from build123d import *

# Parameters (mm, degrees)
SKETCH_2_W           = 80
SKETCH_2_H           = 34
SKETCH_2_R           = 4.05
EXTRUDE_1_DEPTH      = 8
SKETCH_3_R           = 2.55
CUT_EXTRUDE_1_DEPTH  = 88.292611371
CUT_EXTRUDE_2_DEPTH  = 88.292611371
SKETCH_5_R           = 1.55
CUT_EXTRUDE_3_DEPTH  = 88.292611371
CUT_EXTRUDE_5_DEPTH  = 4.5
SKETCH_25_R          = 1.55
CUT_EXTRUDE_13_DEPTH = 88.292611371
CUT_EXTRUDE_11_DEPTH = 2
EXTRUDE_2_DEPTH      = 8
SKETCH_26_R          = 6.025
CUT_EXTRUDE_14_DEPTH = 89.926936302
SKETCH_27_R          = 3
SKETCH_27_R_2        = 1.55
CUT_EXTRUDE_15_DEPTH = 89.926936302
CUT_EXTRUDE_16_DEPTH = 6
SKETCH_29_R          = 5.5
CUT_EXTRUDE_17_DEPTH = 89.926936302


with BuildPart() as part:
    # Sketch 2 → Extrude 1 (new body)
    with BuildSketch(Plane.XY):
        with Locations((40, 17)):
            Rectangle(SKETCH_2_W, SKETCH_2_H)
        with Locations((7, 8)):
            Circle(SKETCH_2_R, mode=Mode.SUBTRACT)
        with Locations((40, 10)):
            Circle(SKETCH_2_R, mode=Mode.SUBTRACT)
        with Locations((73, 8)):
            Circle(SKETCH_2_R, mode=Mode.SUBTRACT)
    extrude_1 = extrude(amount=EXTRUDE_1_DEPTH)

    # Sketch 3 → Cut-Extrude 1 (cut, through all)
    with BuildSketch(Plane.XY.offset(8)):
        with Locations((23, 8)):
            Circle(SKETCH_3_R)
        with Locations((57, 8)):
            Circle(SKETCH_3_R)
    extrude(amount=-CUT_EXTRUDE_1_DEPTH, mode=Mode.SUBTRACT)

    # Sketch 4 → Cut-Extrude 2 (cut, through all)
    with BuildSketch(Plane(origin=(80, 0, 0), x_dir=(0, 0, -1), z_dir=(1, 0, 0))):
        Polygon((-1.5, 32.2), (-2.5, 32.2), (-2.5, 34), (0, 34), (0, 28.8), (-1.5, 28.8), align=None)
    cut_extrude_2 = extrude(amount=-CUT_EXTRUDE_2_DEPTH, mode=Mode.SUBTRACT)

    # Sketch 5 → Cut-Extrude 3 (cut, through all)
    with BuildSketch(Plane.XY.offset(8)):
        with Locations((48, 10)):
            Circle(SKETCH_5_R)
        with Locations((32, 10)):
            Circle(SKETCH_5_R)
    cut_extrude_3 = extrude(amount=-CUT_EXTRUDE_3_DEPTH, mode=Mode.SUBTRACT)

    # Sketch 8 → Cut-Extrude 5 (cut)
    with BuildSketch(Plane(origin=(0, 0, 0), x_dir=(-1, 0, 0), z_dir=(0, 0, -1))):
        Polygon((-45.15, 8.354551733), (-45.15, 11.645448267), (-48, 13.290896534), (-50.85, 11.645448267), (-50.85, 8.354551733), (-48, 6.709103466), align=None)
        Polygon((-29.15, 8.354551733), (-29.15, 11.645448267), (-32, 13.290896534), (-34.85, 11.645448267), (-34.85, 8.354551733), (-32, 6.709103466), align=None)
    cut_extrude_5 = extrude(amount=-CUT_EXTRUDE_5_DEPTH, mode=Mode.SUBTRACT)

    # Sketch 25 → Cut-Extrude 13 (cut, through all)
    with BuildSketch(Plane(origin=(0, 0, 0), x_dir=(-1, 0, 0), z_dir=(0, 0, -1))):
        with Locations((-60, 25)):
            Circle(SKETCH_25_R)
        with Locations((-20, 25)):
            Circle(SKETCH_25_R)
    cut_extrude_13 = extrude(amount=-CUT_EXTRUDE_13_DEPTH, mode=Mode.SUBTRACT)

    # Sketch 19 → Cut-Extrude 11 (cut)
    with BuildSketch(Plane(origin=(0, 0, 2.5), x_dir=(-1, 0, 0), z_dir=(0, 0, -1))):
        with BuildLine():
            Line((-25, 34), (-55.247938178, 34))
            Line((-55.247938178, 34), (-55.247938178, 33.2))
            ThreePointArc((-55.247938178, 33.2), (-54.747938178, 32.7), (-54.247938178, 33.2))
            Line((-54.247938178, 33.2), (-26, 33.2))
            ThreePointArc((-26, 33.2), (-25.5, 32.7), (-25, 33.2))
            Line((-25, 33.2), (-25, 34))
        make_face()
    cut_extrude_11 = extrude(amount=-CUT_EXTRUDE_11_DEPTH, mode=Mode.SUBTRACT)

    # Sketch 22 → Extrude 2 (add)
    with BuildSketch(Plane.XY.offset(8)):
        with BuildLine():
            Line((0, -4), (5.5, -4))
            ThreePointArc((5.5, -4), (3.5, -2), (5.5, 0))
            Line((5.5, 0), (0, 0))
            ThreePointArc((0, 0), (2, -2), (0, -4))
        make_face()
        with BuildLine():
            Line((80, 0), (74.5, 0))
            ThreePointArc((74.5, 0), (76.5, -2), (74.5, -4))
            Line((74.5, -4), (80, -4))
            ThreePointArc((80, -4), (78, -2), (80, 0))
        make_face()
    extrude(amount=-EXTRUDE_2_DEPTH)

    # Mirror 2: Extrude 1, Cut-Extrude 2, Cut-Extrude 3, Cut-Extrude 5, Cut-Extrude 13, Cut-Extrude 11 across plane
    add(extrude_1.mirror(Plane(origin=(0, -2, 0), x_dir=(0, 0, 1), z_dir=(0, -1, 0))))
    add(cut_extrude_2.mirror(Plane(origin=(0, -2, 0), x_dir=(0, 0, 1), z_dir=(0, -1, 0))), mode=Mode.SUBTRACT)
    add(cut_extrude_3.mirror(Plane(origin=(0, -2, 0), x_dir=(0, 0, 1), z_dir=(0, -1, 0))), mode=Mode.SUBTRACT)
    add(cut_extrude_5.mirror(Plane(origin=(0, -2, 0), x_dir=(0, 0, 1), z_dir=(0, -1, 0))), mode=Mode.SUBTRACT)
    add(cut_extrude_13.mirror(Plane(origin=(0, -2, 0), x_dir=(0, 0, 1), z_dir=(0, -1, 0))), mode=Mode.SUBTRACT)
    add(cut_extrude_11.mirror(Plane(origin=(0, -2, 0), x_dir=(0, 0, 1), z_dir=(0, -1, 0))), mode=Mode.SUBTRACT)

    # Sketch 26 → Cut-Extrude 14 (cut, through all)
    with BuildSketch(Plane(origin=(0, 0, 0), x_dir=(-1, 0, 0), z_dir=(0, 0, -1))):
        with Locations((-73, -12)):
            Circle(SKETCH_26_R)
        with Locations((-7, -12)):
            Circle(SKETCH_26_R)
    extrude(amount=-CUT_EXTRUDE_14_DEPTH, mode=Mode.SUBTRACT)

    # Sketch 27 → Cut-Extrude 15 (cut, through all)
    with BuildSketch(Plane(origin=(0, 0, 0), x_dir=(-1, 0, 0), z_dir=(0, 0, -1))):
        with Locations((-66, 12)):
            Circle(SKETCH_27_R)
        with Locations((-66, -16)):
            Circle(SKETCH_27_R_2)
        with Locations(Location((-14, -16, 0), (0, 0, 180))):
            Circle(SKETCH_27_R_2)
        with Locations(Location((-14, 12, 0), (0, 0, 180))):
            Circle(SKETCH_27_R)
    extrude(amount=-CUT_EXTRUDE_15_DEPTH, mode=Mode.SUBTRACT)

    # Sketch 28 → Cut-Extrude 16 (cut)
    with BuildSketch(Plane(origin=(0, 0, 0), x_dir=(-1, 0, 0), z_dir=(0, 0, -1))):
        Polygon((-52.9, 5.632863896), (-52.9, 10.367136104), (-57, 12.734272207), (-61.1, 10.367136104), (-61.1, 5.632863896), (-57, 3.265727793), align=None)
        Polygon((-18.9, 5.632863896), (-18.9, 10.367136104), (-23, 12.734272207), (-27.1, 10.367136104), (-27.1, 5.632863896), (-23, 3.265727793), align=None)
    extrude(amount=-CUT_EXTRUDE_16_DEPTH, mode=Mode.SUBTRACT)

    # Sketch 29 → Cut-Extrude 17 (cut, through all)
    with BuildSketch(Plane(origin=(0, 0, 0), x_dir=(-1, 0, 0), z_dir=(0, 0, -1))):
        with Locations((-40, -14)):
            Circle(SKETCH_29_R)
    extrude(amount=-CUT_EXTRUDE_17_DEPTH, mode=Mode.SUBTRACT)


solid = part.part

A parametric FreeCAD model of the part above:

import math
import FreeCAD as App
import Part
import Sketcher

V = App.Vector
Q = App.Units.Quantity


def add_polygon(sketch, points):
    """Adds a closed chain of lines whose ends are joined by coincident constraints."""
    first, n = sketch.GeometryCount, len(points)
    for a, b in zip(points, points[1:] + points[:1]):
        sketch.addGeometry(Part.LineSegment(App.Vector(*a, 0), App.Vector(*b, 0)), False)
    for i in range(n):
        sketch.addConstraint(Sketcher.Constraint("Coincident", first + i, 2, first + (i + 1) % n, 1))

doc = App.newDocument("Part")
body = doc.addObject("PartDesign::Body", "Body")

sketch1 = body.newObject("Sketcher::SketchObject", "Sketch")
sketch1.AttachmentSupport = (doc.getObject("XY_Plane"), [""])
sketch1.MapMode = "FlatFace"
add_polygon(sketch1, [(0, 34), (0, 0), (80, 0), (80, 34)])
sketch1.addGeometry(Part.Circle(V(7, 8, 0), V(0, 0, 1), 4), False)
sketch1.addGeometry(Part.Circle(V(73, 8, 0), V(0, 0, 1), 4), False)
sketch1.addGeometry(Part.Circle(V(40, 10, 0), V(0, 0, 1), 4), False)
sketch1.addConstraint([
    Sketcher.Constraint("Vertical", 0),
    Sketcher.Constraint("Horizontal", 1),
    Sketcher.Constraint("Vertical", 2),
    Sketcher.Constraint("Horizontal", 3),
    Sketcher.Constraint("Coincident", 0, 2, -1, 1),
    Sketcher.Constraint("Equal", 4, 5),
    Sketcher.Constraint("Equal", 5, 6),
    Sketcher.Constraint("Horizontal", 4, 3, 5, 3),
    Sketcher.Constraint("Diameter", 4, Q("8.1 mm")),
    Sketcher.Constraint("DistanceX", 1, 1, 1, 2, Q("80 mm")),
    Sketcher.Constraint("DistanceY", 0, 2, 0, 1, Q("34 mm")),
    Sketcher.Constraint("DistanceX", -1, 1, 4, 3, Q("7 mm")),
    Sketcher.Constraint("DistanceY", -1, 1, 4, 3, Q("8 mm")),
    Sketcher.Constraint("DistanceX", -1, 1, 5, 3, Q("73 mm")),
    Sketcher.Constraint("DistanceX", -1, 1, 6, 3, Q("40 mm")),
    Sketcher.Constraint("DistanceY", -1, 1, 6, 3, Q("10 mm")),
])
pad1 = body.newObject("PartDesign::Pad", "Pad")
pad1.Profile = sketch1
pad1.Length = 8

sketch2 = body.newObject("Sketcher::SketchObject", "Sketch001")
sketch2.AttachmentSupport = (doc.getObject("XY_Plane"), [""])
sketch2.MapMode = "FlatFace"
sketch2.AttachmentOffset = App.Placement(V(0, 0, 8), App.Rotation())
sketch2.addGeometry([
    Part.Circle(V(23, 8, 0), V(0, 0, 1), 2.5),
    Part.Circle(V(57, 8, 0), V(0, 0, 1), 2.5),
], False)
sketch2.addConstraint([
    Sketcher.Constraint("Equal", 0, 1),
    Sketcher.Constraint("Horizontal", 0, 3, 1, 3),
    Sketcher.Constraint("Diameter", 0, Q("5.1 mm")),
    Sketcher.Constraint("DistanceX", -1, 1, 0, 3, Q("23 mm")),
    Sketcher.Constraint("DistanceY", -1, 1, 0, 3, Q("8 mm")),
    Sketcher.Constraint("DistanceX", -1, 1, 1, 3, Q("57 mm")),
])
pocket1 = body.newObject("PartDesign::Pocket", "Pocket")
pocket1.Profile = sketch2
pocket1.Type = "ThroughAll"

sketch3 = body.newObject("Sketcher::SketchObject", "Sketch002")
sketch3.AttachmentSupport = (doc.getObject("YZ_Plane"), [""])
sketch3.MapMode = "FlatFace"
sketch3.AttachmentOffset = App.Placement(V(0, 0, 80), App.Rotation())
add_polygon(sketch3, [(32.2, 2.5), (32.2, 1.5), (28.8, 1.5), (28.8, 0), (34, 0), (34, 2.5)])
sketch3.addConstraint([
    Sketcher.Constraint("Vertical", 0),
    Sketcher.Constraint("Horizontal", 1),
    Sketcher.Constraint("Vertical", 2),
    Sketcher.Constraint("Horizontal", 3),
    Sketcher.Constraint("Vertical", 4),
    Sketcher.Constraint("Horizontal", 5),
    Sketcher.Constraint("PointOnObject", 2, 2, -1),
    Sketcher.Constraint("DistanceY", 0, 2, 0, 1, Q("1 mm")),
    Sketcher.Constraint("DistanceX", 1, 2, 1, 1, Q("3.4 mm")),
    Sketcher.Constraint("DistanceX", 3, 1, 3, 2, Q("5.2 mm")),
    Sketcher.Constraint("DistanceY", 2, 2, 2, 1, Q("1.5 mm")),
    Sketcher.Constraint("DistanceX", -1, 1, 3, 2, Q("34 mm")),
])
pocket2 = body.newObject("PartDesign::Pocket", "Pocket001")
pocket2.Profile = sketch3
pocket2.Type = "ThroughAll"

sketch4 = body.newObject("Sketcher::SketchObject", "Sketch003")
sketch4.AttachmentSupport = (doc.getObject("XY_Plane"), [""])
sketch4.MapMode = "FlatFace"
sketch4.AttachmentOffset = App.Placement(V(0, 0, 8), App.Rotation())
sketch4.addGeometry([
    Part.Circle(V(48, 10, 0), V(0, 0, 1), 1.6),
    Part.Circle(V(32, 10, 0), V(0, 0, 1), 1.6),
], False)
sketch4.addConstraint([
    Sketcher.Constraint("Equal", 0, 1),
    Sketcher.Constraint("Horizontal", 0, 3, 1, 3),
    Sketcher.Constraint("Diameter", 0, Q("3.1 mm")),
    Sketcher.Constraint("DistanceX", -1, 1, 0, 3, Q("48 mm")),
    Sketcher.Constraint("DistanceY", -1, 1, 0, 3, Q("10 mm")),
    Sketcher.Constraint("DistanceX", -1, 1, 1, 3, Q("32 mm")),
])
pocket3 = body.newObject("PartDesign::Pocket", "Pocket002")
pocket3.Profile = sketch4
pocket3.Type = "ThroughAll"

sketch5 = body.newObject("Sketcher::SketchObject", "Sketch004")
sketch5.AttachmentSupport = (doc.getObject("XY_Plane"), [""])
sketch5.MapMode = "FlatFace"
add_polygon(sketch5, [(45.1, 8.4), (45.1, 11.6), (48, 13.3), (50.9, 11.6), (50.9, 8.4), (48, 6.7)])
add_polygon(sketch5, [(29.1, 8.4), (29.1, 11.6), (32, 13.3), (34.9, 11.6), (34.9, 8.4), (32, 6.7)])
sketch5.addConstraint([
    Sketcher.Constraint("Vertical", 0),
    Sketcher.Constraint("Vertical", 3),
    Sketcher.Constraint("Vertical", 6),
    Sketcher.Constraint("Vertical", 9),
    Sketcher.Constraint("Parallel", 1, 4),
    Sketcher.Constraint("Parallel", 2, 5),
    Sketcher.Constraint("Parallel", 4, 7),
    Sketcher.Constraint("Parallel", 5, 8),
    Sketcher.Constraint("Parallel", 7, 10),
    Sketcher.Constraint("Parallel", 8, 11),
    Sketcher.Constraint("Horizontal", 0, 2, 2, 2),
    Sketcher.Constraint("Horizontal", 3, 2, 5, 2),
    Sketcher.Constraint("Horizontal", 2, 2, 6, 2),
    Sketcher.Constraint("Horizontal", 1, 2, 7, 2),
    Sketcher.Constraint("Horizontal", 6, 2, 8, 2),
    Sketcher.Constraint("Horizontal", 5, 2, 9, 2),
    Sketcher.Constraint("Horizontal", 4, 2, 10, 2),
    Sketcher.Constraint("Vertical", 1, 2, 4, 2),
    Sketcher.Constraint("Angle", 1, Q("30 deg")),
    Sketcher.Constraint("DistanceX", -1, 1, 1, 2, Q("48 mm")),
    Sketcher.Constraint("DistanceX", -1, 1, 7, 2, Q("32 mm")),
    Sketcher.Constraint("DistanceX", 0, 2, 2, 2, Q("5.7 mm")),
    Sketcher.Constraint("DistanceY", 0, 1, 0, 2, Q("3.290897 mm")),
    Sketcher.Constraint("DistanceY", -1, 1, 0, 2, Q("11.645448 mm")),
])
pocket4 = body.newObject("PartDesign::Pocket", "Pocket003")
pocket4.Profile = sketch5
pocket4.Length = 4.5
pocket4.Reversed = True

sketch6 = body.newObject("Sketcher::SketchObject", "Sketch005")
sketch6.AttachmentSupport = (doc.getObject("XY_Plane"), [""])
sketch6.MapMode = "FlatFace"
sketch6.addGeometry([
    Part.Circle(V(60, 25, 0), V(0, 0, 1), 1.6),
    Part.Circle(V(20, 25, 0), V(0, 0, 1), 1.6),
], False)
sketch6.addConstraint([
    Sketcher.Constraint("Equal", 0, 1),
    Sketcher.Constraint("Horizontal", 0, 3, 1, 3),
    Sketcher.Constraint("Diameter", 0, Q("3.1 mm")),
    Sketcher.Constraint("DistanceX", -1, 1, 0, 3, Q("60 mm")),
    Sketcher.Constraint("DistanceY", -1, 1, 0, 3, Q("25 mm")),
    Sketcher.Constraint("DistanceX", -1, 1, 1, 3, Q("20 mm")),
])
pocket5 = body.newObject("PartDesign::Pocket", "Pocket004")
pocket5.Profile = sketch6
pocket5.Type = "ThroughAll"
pocket5.Reversed = True

sketch7 = body.newObject("Sketcher::SketchObject", "Sketch006")
sketch7.AttachmentSupport = (doc.getObject("XY_Plane"), [""])
sketch7.MapMode = "FlatFace"
sketch7.AttachmentOffset = App.Placement(V(0, 0, 2.5), App.Rotation())
sketch7.addGeometry([
    Part.LineSegment(V(25, 34, 0), V(55.2, 34, 0)),
    Part.LineSegment(V(55.2, 34, 0), V(55.2, 33.2, 0)),
    Part.ArcOfCircle(Part.Circle(V(54.7, 33.2, 0), V(0, 0, 1), 0.5), math.radians(180), math.radians(360)),
    Part.LineSegment(V(54.2, 33.2, 0), V(26, 33.2, 0)),
    Part.ArcOfCircle(Part.Circle(V(25.5, 33.2, 0), V(0, 0, 1), 0.5), math.radians(180), math.radians(360)),
    Part.LineSegment(V(25, 33.2, 0), V(25, 34, 0)),
], False)
sketch7.addConstraint([
    Sketcher.Constraint("Coincident", 0, 2, 1, 1),
    Sketcher.Constraint("Tangent", 1, 2, 2, 2),
    Sketcher.Constraint("Coincident", 2, 1, 3, 1),
    Sketcher.Constraint("Coincident", 3, 2, 4, 2),
    Sketcher.Constraint("Tangent", 4, 1, 5, 1),
    Sketcher.Constraint("Coincident", 5, 2, 0, 1),
    Sketcher.Constraint("Horizontal", 0),
    Sketcher.Constraint("Vertical", 1),
    Sketcher.Constraint("Horizontal", 3),
    Sketcher.Constraint("Vertical", 5),
    Sketcher.Constraint("Equal", 2, 4),
    Sketcher.Constraint("Horizontal", 2, 3, 4, 3),
    Sketcher.Constraint("Horizontal", 1, 2, 2, 1),
    Sketcher.Constraint("Radius", 2, Q("0.5 mm")),
    Sketcher.Constraint("DistanceY", 1, 2, 1, 1, Q("0.8 mm")),
    Sketcher.Constraint("DistanceY", -1, 1, 0, 2, Q("34 mm")),
    Sketcher.Constraint("DistanceX", -1, 1, 3, 2, Q("26 mm")),
    Sketcher.Constraint("DistanceX", 0, 1, 0, 2, Q("30.247938 mm")),
])
pocket6 = body.newObject("PartDesign::Pocket", "Pocket005")
pocket6.Profile = sketch7
pocket6.Length = 2
pocket6.Reversed = True

sketch8 = body.newObject("Sketcher::SketchObject", "Sketch007")
sketch8.AttachmentSupport = (doc.getObject("XY_Plane"), [""])
sketch8.MapMode = "FlatFace"
sketch8.AttachmentOffset = App.Placement(V(0, 0, 8), App.Rotation())
sketch8.addGeometry([
    Part.LineSegment(V(0, -4, 0), V(5.5, -4, 0)),
    Part.ArcOfCircle(Part.Circle(V(5.5, -2, 0), V(0, 0, 1), 2), math.radians(90), math.radians(270)),
    Part.LineSegment(V(5.5, 0, 0), V(0, 0, 0)),
    Part.ArcOfCircle(Part.Circle(V(0, -2, 0), V(0, 0, 1), 2), math.radians(-90), math.radians(90)),
    Part.LineSegment(V(80, 0, 0), V(74.5, 0, 0)),
    Part.ArcOfCircle(Part.Circle(V(74.5, -2, 0), V(0, 0, 1), 2), math.radians(-90), math.radians(90)),
    Part.LineSegment(V(74.5, -4, 0), V(80, -4, 0)),
    Part.ArcOfCircle(Part.Circle(V(80, -2, 0), V(0, 0, 1), 2), math.radians(90), math.radians(270)),
], False)
sketch8.addConstraint([
    Sketcher.Constraint("Tangent", 0, 2, 1, 2),
    Sketcher.Constraint("Tangent", 1, 1, 2, 1),
    Sketcher.Constraint("Tangent", 2, 2, 3, 2),
    Sketcher.Constraint("Tangent", 3, 1, 0, 1),
    Sketcher.Constraint("Tangent", 4, 2, 5, 2),
    Sketcher.Constraint("Tangent", 5, 1, 6, 1),
    Sketcher.Constraint("Tangent", 6, 2, 7, 2),
    Sketcher.Constraint("Tangent", 7, 1, 4, 1),
    Sketcher.Constraint("Horizontal", 0),
    Sketcher.Constraint("Horizontal", 2),
    Sketcher.Constraint("Horizontal", 4),
    Sketcher.Constraint("Horizontal", 6),
    Sketcher.Constraint("Coincident", 2, 2, -1, 1),
    Sketcher.Constraint("Equal", 3, 5),
    Sketcher.Constraint("PointOnObject", 4, 2, -1),
    Sketcher.Constraint("Equal", 2, 4),
    Sketcher.Constraint("Radius", 1, Q("2 mm")),
    Sketcher.Constraint("DistanceX", 0, 1, 0, 2, Q("5.5 mm")),
    Sketcher.Constraint("DistanceX", -1, 1, 7, 3, Q("80 mm")),
])
pad2 = body.newObject("PartDesign::Pad", "Pad001")
pad2.Profile = sketch8
pad2.Length = 8
pad2.Reversed = True
doc.recompute()

datumplane = body.newObject("PartDesign::Plane", "DatumPlane")
datumplane.AttachmentSupport = (doc.getObject("XZ_Plane"), [""])
datumplane.MapMode = "FlatFace"
datumplane.AttachmentOffset = App.Placement(V(0, 0, 2), App.Rotation())
mirrored = body.newObject("PartDesign::Mirrored", "Mirrored")
mirrored.Originals = [pad1, pocket2, pocket3, pocket4, pocket5, pocket6]
mirrored.MirrorPlane = (datumplane, [""])
body.Tip = mirrored

sketch9 = body.newObject("Sketcher::SketchObject", "Sketch008")
sketch9.AttachmentSupport = (doc.getObject("XY_Plane"), [""])
sketch9.MapMode = "FlatFace"
sketch9.addGeometry([
    Part.Circle(V(73, -12, 0), V(0, 0, 1), 6),
    Part.Circle(V(7, -12, 0), V(0, 0, 1), 6),
], False)
sketch9.addConstraint([
    Sketcher.Constraint("Equal", 0, 1),
    Sketcher.Constraint("Horizontal", 0, 3, 1, 3),
    Sketcher.Constraint("Diameter", 0, Q("12.05 mm")),
    Sketcher.Constraint("DistanceX", -1, 1, 0, 3, Q("73 mm")),
    Sketcher.Constraint("DistanceY", 0, 3, -1, 1, Q("12 mm")),
    Sketcher.Constraint("DistanceX", -1, 1, 1, 3, Q("7 mm")),
])
pocket7 = body.newObject("PartDesign::Pocket", "Pocket006")
pocket7.Profile = sketch9
pocket7.Type = "ThroughAll"
pocket7.Reversed = True

sketch10 = body.newObject("Sketcher::SketchObject", "Sketch009")
sketch10.AttachmentSupport = (doc.getObject("XY_Plane"), [""])
sketch10.MapMode = "FlatFace"
sketch10.addGeometry([
    Part.Circle(V(66, 12, 0), V(0, 0, 1), 3),
    Part.Circle(V(66, -16, 0), V(0, 0, 1), 1.6),
    Part.Circle(V(14, -16, 0), V(0, 0, 1), 1.6),
    Part.Circle(V(14, 12, 0), V(0, 0, 1), 3),
], False)
sketch10.addConstraint([
    Sketcher.Constraint("Equal", 1, 2),
    Sketcher.Constraint("Equal", 0, 3),
    Sketcher.Constraint("Horizontal", 1, 3, 2, 3),
    Sketcher.Constraint("Horizontal", 0, 3, 3, 3),
    Sketcher.Constraint("Vertical", 0, 3, 1, 3),
    Sketcher.Constraint("Vertical", 2, 3, 3, 3),
    Sketcher.Constraint("Diameter", 0, Q("6 mm")),
    Sketcher.Constraint("Diameter", 1, Q("3.1 mm")),
    Sketcher.Constraint("DistanceX", -1, 1, 0, 3, Q("66 mm")),
    Sketcher.Constraint("DistanceY", -1, 1, 0, 3, Q("12 mm")),
    Sketcher.Constraint("DistanceY", 1, 3, -1, 1, Q("16 mm")),
    Sketcher.Constraint("DistanceX", -1, 1, 2, 3, Q("14 mm")),
])
pocket8 = body.newObject("PartDesign::Pocket", "Pocket007")
pocket8.Profile = sketch10
pocket8.Type = "ThroughAll"
pocket8.Reversed = True

sketch11 = body.newObject("Sketcher::SketchObject", "Sketch010")
sketch11.AttachmentSupport = (doc.getObject("XY_Plane"), [""])
sketch11.MapMode = "FlatFace"
add_polygon(sketch11, [(52.9, 5.6), (52.9, 10.4), (57, 12.7), (61.1, 10.4), (61.1, 5.6), (57, 3.3)])
add_polygon(sketch11, [(18.9, 5.6), (18.9, 10.4), (23, 12.7), (27.1, 10.4), (27.1, 5.6), (23, 3.3)])
sketch11.addConstraint([
    Sketcher.Constraint("Vertical", 0),
    Sketcher.Constraint("Vertical", 3),
    Sketcher.Constraint("Vertical", 6),
    Sketcher.Constraint("Vertical", 9),
    Sketcher.Constraint("Parallel", 1, 4),
    Sketcher.Constraint("Parallel", 2, 5),
    Sketcher.Constraint("Parallel", 4, 7),
    Sketcher.Constraint("Parallel", 5, 8),
    Sketcher.Constraint("Parallel", 7, 10),
    Sketcher.Constraint("Parallel", 8, 11),
    Sketcher.Constraint("Horizontal", 0, 2, 2, 2),
    Sketcher.Constraint("Horizontal", 3, 2, 5, 2),
    Sketcher.Constraint("Horizontal", 2, 2, 6, 2),
    Sketcher.Constraint("Horizontal", 1, 2, 7, 2),
    Sketcher.Constraint("Horizontal", 6, 2, 8, 2),
    Sketcher.Constraint("Horizontal", 5, 2, 9, 2),
    Sketcher.Constraint("Horizontal", 4, 2, 10, 2),
    Sketcher.Constraint("Vertical", 1, 2, 4, 2),
    Sketcher.Constraint("Angle", 1, Q("30 deg")),
    Sketcher.Constraint("DistanceX", -1, 1, 1, 2, Q("57 mm")),
    Sketcher.Constraint("DistanceX", -1, 1, 7, 2, Q("23 mm")),
    Sketcher.Constraint("DistanceX", -1, 1, 0, 2, Q("52.9 mm")),
    Sketcher.Constraint("DistanceY", 0, 1, 0, 2, Q("4.734272 mm")),
    Sketcher.Constraint("DistanceY", -1, 1, 0, 2, Q("10.367136 mm")),
])
pocket9 = body.newObject("PartDesign::Pocket", "Pocket008")
pocket9.Profile = sketch11
pocket9.Length = 6
pocket9.Reversed = True

sketch12 = body.newObject("Sketcher::SketchObject", "Sketch011")
sketch12.AttachmentSupport = (doc.getObject("XY_Plane"), [""])
sketch12.MapMode = "FlatFace"
sketch12.addGeometry(Part.Circle(V(40, -14, 0), V(0, 0, 1), 6), False)
sketch12.addConstraint([
    Sketcher.Constraint("Diameter", 0, Q("11 mm")),
    Sketcher.Constraint("DistanceX", -1, 1, 0, 3, Q("40 mm")),
    Sketcher.Constraint("DistanceY", 0, 3, -1, 1, Q("14 mm")),
])
pocket10 = body.newObject("PartDesign::Pocket", "Pocket009")
pocket10.Profile = sketch12
pocket10.Type = "ThroughAll"
pocket10.Reversed = True

doc.recompute()
